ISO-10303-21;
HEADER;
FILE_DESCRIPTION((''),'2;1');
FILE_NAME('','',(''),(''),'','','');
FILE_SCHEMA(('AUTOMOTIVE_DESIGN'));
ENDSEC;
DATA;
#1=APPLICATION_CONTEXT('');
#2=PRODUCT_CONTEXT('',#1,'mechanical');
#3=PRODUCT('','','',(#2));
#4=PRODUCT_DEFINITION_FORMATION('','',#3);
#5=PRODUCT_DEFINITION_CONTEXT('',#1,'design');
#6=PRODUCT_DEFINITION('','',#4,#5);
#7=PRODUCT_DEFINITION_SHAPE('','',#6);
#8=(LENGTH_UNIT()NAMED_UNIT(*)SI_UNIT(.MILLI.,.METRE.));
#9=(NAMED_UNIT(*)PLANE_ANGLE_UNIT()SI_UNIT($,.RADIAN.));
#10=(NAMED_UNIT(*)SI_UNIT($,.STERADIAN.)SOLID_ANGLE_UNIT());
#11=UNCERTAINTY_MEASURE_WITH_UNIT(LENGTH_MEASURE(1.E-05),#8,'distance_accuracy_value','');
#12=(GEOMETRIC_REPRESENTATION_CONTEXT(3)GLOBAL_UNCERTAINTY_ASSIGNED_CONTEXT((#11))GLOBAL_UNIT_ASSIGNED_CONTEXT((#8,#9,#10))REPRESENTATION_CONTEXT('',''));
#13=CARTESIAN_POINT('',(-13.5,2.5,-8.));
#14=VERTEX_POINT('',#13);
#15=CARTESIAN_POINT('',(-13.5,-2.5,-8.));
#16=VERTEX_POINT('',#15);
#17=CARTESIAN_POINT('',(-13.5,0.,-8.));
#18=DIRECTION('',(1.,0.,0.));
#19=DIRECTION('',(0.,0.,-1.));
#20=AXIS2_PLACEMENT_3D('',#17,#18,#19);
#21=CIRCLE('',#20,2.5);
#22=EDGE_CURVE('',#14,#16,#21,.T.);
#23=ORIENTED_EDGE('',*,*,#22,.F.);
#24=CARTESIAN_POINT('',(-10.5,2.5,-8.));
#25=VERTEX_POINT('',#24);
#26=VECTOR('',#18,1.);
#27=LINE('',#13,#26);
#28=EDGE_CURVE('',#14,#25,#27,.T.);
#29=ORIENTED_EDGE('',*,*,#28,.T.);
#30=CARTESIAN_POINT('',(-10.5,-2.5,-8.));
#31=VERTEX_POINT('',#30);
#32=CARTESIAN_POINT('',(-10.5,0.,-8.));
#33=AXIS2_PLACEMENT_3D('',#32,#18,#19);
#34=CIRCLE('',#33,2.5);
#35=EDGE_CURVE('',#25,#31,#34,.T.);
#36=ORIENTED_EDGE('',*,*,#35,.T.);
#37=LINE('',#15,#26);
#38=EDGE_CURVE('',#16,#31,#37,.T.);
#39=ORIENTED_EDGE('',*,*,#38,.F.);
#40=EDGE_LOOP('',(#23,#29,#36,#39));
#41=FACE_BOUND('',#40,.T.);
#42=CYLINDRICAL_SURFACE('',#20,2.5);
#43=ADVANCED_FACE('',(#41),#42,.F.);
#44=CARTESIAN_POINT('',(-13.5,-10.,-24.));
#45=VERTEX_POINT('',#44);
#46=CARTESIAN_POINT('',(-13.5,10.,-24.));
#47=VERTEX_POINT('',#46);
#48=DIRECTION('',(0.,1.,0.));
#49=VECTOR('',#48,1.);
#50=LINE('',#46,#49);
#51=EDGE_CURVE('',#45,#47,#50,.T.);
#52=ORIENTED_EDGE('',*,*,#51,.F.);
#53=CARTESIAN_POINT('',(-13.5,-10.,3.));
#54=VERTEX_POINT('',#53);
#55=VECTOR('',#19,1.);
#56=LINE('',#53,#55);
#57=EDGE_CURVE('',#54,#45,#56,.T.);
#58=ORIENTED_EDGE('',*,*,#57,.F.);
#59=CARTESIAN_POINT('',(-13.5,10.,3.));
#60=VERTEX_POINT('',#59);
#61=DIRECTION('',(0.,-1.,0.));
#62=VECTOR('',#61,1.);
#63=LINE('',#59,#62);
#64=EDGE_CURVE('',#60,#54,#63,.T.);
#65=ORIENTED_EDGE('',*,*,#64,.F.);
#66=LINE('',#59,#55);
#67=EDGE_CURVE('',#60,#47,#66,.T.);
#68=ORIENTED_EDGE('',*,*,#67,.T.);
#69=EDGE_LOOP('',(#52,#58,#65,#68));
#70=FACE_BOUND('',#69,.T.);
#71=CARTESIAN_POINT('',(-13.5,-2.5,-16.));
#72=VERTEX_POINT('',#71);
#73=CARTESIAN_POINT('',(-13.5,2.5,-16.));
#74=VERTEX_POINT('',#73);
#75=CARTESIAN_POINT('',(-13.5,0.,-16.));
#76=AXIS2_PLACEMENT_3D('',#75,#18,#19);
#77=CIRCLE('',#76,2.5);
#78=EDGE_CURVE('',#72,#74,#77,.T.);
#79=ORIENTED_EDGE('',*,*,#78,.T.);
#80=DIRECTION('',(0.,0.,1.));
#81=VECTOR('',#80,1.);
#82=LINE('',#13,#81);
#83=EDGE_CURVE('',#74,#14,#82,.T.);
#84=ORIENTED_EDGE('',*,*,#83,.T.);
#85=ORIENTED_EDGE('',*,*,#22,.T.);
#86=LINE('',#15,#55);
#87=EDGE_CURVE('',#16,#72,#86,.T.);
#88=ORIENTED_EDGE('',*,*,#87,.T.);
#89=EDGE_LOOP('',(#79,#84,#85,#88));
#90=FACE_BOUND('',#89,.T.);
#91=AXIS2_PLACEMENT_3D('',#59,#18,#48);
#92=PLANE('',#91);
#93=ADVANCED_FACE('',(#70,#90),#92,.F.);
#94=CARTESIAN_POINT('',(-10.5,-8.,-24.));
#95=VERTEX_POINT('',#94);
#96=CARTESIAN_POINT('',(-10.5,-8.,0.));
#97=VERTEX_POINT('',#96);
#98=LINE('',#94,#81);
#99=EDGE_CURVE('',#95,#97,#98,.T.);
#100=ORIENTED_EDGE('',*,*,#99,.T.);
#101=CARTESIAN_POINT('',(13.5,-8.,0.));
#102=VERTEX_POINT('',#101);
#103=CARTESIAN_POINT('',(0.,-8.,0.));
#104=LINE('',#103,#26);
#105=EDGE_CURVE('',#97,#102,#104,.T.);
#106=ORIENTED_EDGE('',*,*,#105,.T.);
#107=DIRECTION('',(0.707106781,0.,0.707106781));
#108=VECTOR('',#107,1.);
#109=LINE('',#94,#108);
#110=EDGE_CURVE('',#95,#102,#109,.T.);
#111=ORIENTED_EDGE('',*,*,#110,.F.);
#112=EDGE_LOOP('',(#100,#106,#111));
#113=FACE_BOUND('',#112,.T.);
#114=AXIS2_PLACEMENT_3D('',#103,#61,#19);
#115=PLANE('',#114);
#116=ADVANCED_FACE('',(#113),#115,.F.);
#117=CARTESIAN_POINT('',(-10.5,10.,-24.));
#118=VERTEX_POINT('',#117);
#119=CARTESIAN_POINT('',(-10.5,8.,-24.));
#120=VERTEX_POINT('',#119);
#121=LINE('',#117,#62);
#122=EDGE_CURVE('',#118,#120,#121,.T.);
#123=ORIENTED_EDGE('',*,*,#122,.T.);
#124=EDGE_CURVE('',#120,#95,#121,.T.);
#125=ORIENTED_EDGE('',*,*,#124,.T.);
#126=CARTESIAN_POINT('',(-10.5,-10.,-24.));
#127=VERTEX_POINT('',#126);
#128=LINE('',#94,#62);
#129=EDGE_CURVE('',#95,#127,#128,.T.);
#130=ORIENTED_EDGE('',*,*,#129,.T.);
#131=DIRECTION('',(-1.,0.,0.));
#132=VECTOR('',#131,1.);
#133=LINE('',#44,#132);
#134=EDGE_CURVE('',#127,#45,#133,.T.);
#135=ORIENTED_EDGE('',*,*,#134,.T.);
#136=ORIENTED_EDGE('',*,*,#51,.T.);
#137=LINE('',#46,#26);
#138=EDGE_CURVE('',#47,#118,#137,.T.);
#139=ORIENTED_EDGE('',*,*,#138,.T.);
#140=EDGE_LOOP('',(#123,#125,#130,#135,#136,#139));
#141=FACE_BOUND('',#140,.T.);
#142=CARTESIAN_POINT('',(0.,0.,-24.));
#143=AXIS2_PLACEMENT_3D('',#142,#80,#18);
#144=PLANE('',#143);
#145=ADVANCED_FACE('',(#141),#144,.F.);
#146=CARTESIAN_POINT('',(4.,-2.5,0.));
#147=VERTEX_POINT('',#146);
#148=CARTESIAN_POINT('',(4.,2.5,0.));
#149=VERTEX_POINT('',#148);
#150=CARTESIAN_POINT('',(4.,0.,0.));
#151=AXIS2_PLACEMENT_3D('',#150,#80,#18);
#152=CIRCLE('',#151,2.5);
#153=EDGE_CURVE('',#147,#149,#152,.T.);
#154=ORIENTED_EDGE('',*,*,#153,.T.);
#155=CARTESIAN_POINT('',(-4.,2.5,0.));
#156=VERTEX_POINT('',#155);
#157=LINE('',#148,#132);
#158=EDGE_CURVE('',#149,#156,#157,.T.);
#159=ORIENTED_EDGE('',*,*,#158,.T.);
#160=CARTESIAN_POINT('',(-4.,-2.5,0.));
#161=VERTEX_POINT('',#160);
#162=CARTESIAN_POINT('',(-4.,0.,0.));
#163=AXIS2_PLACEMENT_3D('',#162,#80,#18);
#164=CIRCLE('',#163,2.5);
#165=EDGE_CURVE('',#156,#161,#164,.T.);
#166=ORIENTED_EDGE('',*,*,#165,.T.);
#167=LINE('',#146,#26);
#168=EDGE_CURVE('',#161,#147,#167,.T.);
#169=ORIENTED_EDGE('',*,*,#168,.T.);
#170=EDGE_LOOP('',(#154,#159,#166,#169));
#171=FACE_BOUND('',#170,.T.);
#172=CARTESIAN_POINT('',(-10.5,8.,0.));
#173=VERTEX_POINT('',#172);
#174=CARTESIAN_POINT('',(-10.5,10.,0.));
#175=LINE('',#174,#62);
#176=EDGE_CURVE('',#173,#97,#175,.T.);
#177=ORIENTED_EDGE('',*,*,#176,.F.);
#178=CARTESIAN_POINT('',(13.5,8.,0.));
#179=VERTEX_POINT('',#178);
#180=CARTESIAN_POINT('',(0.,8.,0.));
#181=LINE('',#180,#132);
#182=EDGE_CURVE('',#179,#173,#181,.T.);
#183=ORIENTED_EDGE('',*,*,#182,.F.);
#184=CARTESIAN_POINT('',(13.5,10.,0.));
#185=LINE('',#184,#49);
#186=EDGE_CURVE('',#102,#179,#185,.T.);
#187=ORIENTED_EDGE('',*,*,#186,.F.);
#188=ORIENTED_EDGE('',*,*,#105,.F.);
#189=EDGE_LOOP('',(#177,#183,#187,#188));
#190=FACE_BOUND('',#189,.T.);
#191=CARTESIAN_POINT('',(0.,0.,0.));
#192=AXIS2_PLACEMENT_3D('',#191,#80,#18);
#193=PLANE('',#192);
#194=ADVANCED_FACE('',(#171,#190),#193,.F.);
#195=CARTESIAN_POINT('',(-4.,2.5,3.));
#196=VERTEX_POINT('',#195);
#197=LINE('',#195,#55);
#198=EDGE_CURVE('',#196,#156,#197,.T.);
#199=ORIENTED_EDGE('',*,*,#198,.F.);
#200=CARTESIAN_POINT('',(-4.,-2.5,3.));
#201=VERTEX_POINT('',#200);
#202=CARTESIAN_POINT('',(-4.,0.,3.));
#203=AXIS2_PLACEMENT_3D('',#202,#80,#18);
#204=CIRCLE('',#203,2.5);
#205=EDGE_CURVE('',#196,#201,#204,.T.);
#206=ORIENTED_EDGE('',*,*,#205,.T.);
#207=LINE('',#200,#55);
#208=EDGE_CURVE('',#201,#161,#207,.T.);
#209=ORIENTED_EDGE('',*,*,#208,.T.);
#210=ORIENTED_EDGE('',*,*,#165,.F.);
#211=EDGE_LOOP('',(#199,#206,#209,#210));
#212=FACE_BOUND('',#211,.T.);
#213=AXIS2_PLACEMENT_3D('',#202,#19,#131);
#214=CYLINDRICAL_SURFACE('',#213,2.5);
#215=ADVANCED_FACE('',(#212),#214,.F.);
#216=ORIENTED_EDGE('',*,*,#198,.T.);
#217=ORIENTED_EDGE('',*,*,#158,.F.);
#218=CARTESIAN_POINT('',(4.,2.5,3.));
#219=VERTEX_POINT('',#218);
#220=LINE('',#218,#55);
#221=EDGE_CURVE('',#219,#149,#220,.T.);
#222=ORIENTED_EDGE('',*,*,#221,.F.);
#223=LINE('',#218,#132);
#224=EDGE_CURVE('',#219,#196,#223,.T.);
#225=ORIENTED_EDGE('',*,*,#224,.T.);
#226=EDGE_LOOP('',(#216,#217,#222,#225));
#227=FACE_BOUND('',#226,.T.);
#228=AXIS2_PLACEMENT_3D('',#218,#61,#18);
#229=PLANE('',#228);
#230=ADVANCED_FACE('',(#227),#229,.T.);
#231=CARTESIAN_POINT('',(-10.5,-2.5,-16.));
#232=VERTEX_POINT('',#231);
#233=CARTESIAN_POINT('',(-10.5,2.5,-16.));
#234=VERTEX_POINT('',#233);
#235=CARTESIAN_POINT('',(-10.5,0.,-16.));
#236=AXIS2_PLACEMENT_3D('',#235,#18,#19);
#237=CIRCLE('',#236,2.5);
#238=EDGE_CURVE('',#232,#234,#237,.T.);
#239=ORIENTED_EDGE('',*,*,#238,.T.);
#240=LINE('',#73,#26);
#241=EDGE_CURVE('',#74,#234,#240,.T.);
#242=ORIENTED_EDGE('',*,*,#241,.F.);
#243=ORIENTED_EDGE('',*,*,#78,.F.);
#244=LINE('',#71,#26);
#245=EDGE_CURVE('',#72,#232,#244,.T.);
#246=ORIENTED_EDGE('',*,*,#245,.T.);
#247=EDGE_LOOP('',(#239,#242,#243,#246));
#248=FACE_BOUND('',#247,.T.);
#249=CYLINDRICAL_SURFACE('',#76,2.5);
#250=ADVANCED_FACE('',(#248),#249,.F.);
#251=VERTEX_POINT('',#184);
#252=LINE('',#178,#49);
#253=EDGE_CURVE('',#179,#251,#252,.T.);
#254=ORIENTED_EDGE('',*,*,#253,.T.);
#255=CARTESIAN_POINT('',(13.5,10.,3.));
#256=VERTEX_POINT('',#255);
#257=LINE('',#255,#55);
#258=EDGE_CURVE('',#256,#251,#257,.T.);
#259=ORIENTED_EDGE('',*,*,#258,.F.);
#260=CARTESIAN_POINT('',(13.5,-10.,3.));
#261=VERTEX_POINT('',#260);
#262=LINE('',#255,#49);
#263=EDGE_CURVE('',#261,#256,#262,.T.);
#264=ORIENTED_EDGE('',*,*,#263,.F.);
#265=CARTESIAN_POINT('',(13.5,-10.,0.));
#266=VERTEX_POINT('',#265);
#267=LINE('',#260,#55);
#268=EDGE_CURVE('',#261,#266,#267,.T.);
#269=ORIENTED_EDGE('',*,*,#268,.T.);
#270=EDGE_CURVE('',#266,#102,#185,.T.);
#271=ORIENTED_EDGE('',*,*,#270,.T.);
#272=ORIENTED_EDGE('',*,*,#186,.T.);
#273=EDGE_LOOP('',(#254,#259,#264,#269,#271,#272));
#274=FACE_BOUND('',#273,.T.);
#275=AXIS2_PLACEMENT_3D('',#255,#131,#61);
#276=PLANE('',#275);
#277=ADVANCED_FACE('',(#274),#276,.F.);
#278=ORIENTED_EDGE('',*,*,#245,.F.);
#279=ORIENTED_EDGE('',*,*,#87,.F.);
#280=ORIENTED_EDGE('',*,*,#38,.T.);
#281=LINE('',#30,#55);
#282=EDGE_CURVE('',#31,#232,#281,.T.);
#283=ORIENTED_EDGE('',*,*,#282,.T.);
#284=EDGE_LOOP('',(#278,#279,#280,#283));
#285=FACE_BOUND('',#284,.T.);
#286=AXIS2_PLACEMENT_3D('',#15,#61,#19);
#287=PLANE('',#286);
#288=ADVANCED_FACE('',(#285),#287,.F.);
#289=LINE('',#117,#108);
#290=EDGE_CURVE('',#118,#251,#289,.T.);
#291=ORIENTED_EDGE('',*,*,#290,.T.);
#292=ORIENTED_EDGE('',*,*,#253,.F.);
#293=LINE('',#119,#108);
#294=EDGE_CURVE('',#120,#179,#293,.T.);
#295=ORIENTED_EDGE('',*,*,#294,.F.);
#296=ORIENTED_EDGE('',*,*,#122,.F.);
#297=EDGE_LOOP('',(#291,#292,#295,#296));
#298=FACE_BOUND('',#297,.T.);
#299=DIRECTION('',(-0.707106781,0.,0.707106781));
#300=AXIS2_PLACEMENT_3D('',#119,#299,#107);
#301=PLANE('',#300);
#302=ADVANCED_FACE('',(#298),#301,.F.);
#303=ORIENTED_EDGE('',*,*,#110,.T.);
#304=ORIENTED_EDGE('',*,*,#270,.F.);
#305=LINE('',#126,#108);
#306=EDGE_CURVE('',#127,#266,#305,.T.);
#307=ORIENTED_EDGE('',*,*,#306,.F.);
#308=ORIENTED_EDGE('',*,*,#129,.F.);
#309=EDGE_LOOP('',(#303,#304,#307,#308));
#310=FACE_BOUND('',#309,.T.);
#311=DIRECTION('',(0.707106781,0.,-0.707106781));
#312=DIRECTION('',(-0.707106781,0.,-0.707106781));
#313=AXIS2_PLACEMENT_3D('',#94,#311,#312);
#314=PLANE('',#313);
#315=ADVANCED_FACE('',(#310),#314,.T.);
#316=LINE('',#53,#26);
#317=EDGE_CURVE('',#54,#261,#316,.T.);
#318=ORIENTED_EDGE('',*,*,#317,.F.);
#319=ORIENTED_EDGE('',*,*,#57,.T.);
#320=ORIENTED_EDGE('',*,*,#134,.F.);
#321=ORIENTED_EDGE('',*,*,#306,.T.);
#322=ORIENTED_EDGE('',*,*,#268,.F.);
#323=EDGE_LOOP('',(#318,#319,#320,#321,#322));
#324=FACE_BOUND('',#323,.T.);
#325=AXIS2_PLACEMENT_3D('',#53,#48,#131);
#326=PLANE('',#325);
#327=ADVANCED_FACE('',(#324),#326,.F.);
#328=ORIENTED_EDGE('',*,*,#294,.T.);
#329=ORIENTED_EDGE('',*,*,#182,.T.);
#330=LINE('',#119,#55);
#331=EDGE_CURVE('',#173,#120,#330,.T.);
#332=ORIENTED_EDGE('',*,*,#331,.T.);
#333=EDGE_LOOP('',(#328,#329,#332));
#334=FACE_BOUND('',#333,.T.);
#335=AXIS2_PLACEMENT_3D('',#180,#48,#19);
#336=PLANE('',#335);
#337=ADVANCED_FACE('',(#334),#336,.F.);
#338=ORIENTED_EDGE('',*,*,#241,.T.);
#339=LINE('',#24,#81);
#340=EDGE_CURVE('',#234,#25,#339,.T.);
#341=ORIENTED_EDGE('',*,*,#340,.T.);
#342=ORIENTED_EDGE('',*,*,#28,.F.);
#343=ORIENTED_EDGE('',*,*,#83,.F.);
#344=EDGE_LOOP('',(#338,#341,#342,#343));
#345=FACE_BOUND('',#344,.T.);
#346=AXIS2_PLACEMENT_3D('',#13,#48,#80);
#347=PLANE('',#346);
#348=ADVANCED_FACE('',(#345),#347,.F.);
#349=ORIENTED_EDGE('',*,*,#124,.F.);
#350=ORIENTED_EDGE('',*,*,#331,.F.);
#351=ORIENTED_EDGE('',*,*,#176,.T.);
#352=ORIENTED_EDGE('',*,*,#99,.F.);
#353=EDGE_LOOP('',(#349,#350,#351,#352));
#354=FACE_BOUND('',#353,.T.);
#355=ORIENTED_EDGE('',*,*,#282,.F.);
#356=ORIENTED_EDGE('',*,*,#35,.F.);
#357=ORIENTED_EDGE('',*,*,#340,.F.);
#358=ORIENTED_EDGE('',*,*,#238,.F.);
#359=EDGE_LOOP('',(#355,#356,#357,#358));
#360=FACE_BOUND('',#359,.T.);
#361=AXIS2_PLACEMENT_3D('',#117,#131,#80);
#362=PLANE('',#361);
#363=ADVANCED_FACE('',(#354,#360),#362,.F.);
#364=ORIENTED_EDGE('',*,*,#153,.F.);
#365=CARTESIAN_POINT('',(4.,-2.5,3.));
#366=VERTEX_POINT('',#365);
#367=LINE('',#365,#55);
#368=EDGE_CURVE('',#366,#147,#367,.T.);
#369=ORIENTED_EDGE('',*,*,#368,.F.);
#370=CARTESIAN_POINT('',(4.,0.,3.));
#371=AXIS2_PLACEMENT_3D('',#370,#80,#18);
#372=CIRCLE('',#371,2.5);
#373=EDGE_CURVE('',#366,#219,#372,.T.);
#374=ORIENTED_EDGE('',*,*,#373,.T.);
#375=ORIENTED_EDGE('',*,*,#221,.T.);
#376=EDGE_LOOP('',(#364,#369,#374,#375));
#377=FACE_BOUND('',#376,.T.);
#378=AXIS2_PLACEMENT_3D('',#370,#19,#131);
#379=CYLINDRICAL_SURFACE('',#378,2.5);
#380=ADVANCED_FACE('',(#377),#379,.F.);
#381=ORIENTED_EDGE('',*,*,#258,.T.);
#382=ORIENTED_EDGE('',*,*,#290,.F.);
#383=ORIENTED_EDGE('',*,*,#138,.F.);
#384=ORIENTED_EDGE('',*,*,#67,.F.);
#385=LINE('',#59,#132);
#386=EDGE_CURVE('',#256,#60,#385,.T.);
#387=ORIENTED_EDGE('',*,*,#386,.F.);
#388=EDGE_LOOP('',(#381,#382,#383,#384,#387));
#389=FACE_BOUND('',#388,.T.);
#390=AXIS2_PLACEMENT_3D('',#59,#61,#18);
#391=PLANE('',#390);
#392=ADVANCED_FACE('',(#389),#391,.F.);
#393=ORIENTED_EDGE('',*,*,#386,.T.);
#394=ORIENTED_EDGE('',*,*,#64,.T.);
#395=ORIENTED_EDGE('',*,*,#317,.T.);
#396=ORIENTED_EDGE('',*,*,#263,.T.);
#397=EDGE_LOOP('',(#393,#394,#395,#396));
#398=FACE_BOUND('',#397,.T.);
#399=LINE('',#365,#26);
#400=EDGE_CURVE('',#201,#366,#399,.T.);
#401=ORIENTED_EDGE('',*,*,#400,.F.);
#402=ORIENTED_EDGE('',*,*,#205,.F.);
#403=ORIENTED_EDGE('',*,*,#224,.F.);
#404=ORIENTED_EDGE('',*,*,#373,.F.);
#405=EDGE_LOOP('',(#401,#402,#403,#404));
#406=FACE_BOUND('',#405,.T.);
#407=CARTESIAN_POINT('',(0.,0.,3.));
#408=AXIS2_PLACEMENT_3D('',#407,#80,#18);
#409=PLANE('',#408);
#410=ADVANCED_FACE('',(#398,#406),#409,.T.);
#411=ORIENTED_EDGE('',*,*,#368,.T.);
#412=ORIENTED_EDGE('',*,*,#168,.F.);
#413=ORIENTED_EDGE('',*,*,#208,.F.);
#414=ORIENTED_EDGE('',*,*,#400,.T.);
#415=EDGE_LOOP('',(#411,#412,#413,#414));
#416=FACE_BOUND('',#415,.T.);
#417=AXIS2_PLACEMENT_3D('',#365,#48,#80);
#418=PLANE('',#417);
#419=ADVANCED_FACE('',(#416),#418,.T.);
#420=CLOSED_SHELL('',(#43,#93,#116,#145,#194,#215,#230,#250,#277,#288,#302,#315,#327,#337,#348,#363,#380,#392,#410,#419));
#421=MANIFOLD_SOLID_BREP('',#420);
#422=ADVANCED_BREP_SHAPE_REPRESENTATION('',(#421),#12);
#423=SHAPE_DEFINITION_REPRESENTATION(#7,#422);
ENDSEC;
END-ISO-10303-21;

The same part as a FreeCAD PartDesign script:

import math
import FreeCAD as App
import Part
import Sketcher

V = App.Vector


def add_polygon(sketch, points):
    """Adds a closed chain of lines whose ends are joined by coincident constraints."""
    first, n = sketch.GeometryCount, len(points)
    for a, b in zip(points, points[1:] + points[:1]):
        sketch.addGeometry(Part.LineSegment(App.Vector(*a, 0), App.Vector(*b, 0)), False)
    for i in range(n):
        sketch.addConstraint(Sketcher.Constraint("Coincident", first + i, 2, first + (i + 1) % n, 1))

doc = App.newDocument("Part")
params = doc.addObject("Spreadsheet::Sheet", "Params")
for row, (alias, value) in enumerate([
    ("sketch1_radius", "2.5 mm"),
    ("sketch1_width", "27 mm"),
    ("sketch1_width2", "8 mm"),
    ("sketch1_height", "20 mm"),
    ("pad1_length", "3 mm"),
    ("sketch2_width", "3 mm"),
    ("sketch2_height", "20 mm"),
    ("pad2_length", "24 mm"),
    ("sketch3_width", "27 mm"),
    ("sketch3_width2", "3 mm"),
    ("pad3_length", "2 mm"),
    ("sketch4_radius", "2.5 mm"),
    ("sketch4_height", "8 mm"),
    ("pocket1_length", "3 mm"),
], start=1):
    params.set(f"A{row}", alias)
    params.set(f"B{row}", "=" + value)
    params.setAlias(f"B{row}", alias)

body = doc.addObject("PartDesign::Body", "Body")

sketch1 = body.newObject("Sketcher::SketchObject", "Sketch")
sketch1.AttachmentSupport = (doc.getObject("XY_Plane"), [""])
sketch1.MapMode = "FlatFace"
add_polygon(sketch1, [(-13.5, 10), (-13.5, -10), (13.5, -10), (13.5, 10)])
sketch1.addGeometry(Part.ArcOfCircle(Part.Circle(V(4, 0, 0), V(0, 0, 1), 2.5), math.radians(-90), math.radians(90)), False)
sketch1.addGeometry(Part.LineSegment(V(4, -2.5, 0), V(-4, -2.5, 0)), False)
sketch1.addGeometry(Part.ArcOfCircle(Part.Circle(V(-4, 0, 0), V(0, 0, 1), 2.5), math.radians(90), math.radians(270)), False)
sketch1.addGeometry(Part.LineSegment(V(-4, 2.5, 0), V(4, 2.5, 0)), False)
sketch1.addConstraint([
    Sketcher.Constraint("Tangent", 4, 1, 5, 1),
    Sketcher.Constraint("Tangent", 5, 2, 6, 2),
    Sketcher.Constraint("Tangent", 6, 1, 7, 1),
    Sketcher.Constraint("Tangent", 7, 2, 4, 2),
    Sketcher.Constraint("Vertical", 0),
    Sketcher.Constraint("Horizontal", 1),
    Sketcher.Constraint("Vertical", 2),
    Sketcher.Constraint("Horizontal", 3),
    Sketcher.Constraint("Horizontal", 5),
    Sketcher.Constraint("Horizontal", 7),
    Sketcher.Constraint("Symmetric", 4, 3, 6, 3, -1, 1),
    Sketcher.Constraint("Symmetric", 0, 2, 2, 2, -1, 1),
    Sketcher.Constraint("Radius", 4, 2.5),
    Sketcher.Constraint("DistanceX", 1, 1, 1, 2, 27.0),
    Sketcher.Constraint("DistanceX", 5, 2, 5, 1, 8.0),
    Sketcher.Constraint("DistanceY", 0, 2, 0, 1, 20.0),
])
sketch1.setExpression("Constraints[16]", "Params.sketch1_radius")
sketch1.setExpression("Constraints[17]", "Params.sketch1_width")
sketch1.setExpression("Constraints[18]", "Params.sketch1_width2")
sketch1.setExpression("Constraints[19]", "Params.sketch1_height")
pad1 = body.newObject("PartDesign::Pad", "Pad")
pad1.Profile = sketch1
pad1.setExpression("Length", "Params.pad1_length")

sketch2 = body.newObject("Sketcher::SketchObject", "Sketch001")
sketch2.AttachmentSupport = (doc.getObject("XY_Plane"), [""])
sketch2.MapMode = "FlatFace"
add_polygon(sketch2, [(-10.5, 10), (-10.5, -10), (-13.5, -10), (-13.5, 10)])
sketch2.addConstraint([
    Sketcher.Constraint("Vertical", 0),
    Sketcher.Constraint("Horizontal", 1),
    Sketcher.Constraint("Vertical", 2),
    Sketcher.Constraint("Horizontal", 3),
    Sketcher.Constraint("DistanceX", 1, 2, 1, 1, 3.0),
    Sketcher.Constraint("DistanceY", 0, 2, 0, 1, 20.0),
    Sketcher.Constraint("DistanceY", 0, 2, -1, 1, 10.0),
    Sketcher.Constraint("DistanceX", 0, 2, -1, 1, 10.5),
])
sketch2.setExpression("Constraints[8]", "Params.sketch2_width")
sketch2.setExpression("Constraints[9]", "Params.sketch2_height")
pad2 = body.newObject("PartDesign::Pad", "Pad001")
pad2.Profile = sketch2
pad2.setExpression("Length", "Params.pad2_length")
pad2.Reversed = True

sketch3 = body.newObject("Sketcher::SketchObject", "Sketch002")
sketch3.AttachmentSupport = (doc.getObject("XZ_Plane"), [""])
sketch3.MapMode = "FlatFace"
sketch3.AttachmentOffset = App.Placement(V(0, 0, 10), App.Rotation())
add_polygon(sketch3, [(-10.5, -24), (13.5, 0), (13.5, 3), (-13.5, 3), (-13.5, -24)])
sketch3.addConstraint([
    Sketcher.Constraint("Vertical", 1),
    Sketcher.Constraint("Horizontal", 2),
    Sketcher.Constraint("Vertical", 3),
    Sketcher.Constraint("Horizontal", 4),
    Sketcher.Constraint("PointOnObject", 0, 2, -1),
    Sketcher.Constraint("Equal", 4, 1),
    Sketcher.Constraint("Equal", 2, 3),
    Sketcher.Constraint("DistanceX", 2, 2, 2, 1, 27.0),
    Sketcher.Constraint("DistanceX", 4, 1, 4, 2, 3.0),
    Sketcher.Constraint("DistanceX", -1, 1, 0, 2, 13.5),
])
sketch3.setExpression("Constraints[12]", "Params.sketch3_width")
sketch3.setExpression("Constraints[13]", "Params.sketch3_width2")
pad3 = body.newObject("PartDesign::Pad", "Pad002")
pad3.Profile = sketch3
pad3.setExpression("Length", "Params.pad3_length")
pad3.Reversed = True
doc.recompute()

mirrored = body.newObject("PartDesign::Mirrored", "Mirrored")
mirrored.Originals = [pad3]
mirrored.MirrorPlane = (doc.getObject("XZ_Plane"), [""])
body.Tip = mirrored

sketch4 = body.newObject("Sketcher::SketchObject", "Sketch003")
sketch4.AttachmentSupport = (doc.getObject("YZ_Plane"), [""])
sketch4.MapMode = "FlatFace"
sketch4.AttachmentOffset = App.Placement(V(0, 0, -10.5), App.Rotation())
sketch4.addGeometry([
    Part.LineSegment(V(2.5, -16, 0), V(2.5, -8, 0)),
    Part.ArcOfCircle(Part.Circle(V(0, -8, 0), V(0, 0, 1), 2.5), math.radians(0), math.radians(180)),
    Part.LineSegment(V(-2.5, -8, 0), V(-2.5, -16, 0)),
    Part.ArcOfCircle(Part.Circle(V(0, -16, 0), V(0, 0, 1), 2.5), math.radians(180), math.radians(360)),
], False)
sketch4.addConstraint([
    Sketcher.Constraint("Tangent", 0, 2, 1, 1),
    Sketcher.Constraint("Tangent", 1, 2, 2, 1),
    Sketcher.Constraint("Tangent", 2, 2, 3, 1),
    Sketcher.Constraint("Tangent", 3, 2, 0, 1),
    Sketcher.Constraint("Vertical", 0),
    Sketcher.Constraint("Vertical", 2),
    Sketcher.Constraint("PointOnObject", 1, 3, -2),
    Sketcher.Constraint("Radius", 1, 2.5),
    Sketcher.Constraint("DistanceY", 0, 1, 0, 2, 8.0),
    Sketcher.Constraint("DistanceY", 1, 3, -1, 1, 8.0),
])
sketch4.setExpression("Constraints[7]", "Params.sketch4_radius")
sketch4.setExpression("Constraints[8]", "Params.sketch4_height")
pocket1 = body.newObject("PartDesign::Pocket", "Pocket")
pocket1.Profile = sketch4
pocket1.setExpression("Length", "Params.pocket1_length")

doc.recompute()
